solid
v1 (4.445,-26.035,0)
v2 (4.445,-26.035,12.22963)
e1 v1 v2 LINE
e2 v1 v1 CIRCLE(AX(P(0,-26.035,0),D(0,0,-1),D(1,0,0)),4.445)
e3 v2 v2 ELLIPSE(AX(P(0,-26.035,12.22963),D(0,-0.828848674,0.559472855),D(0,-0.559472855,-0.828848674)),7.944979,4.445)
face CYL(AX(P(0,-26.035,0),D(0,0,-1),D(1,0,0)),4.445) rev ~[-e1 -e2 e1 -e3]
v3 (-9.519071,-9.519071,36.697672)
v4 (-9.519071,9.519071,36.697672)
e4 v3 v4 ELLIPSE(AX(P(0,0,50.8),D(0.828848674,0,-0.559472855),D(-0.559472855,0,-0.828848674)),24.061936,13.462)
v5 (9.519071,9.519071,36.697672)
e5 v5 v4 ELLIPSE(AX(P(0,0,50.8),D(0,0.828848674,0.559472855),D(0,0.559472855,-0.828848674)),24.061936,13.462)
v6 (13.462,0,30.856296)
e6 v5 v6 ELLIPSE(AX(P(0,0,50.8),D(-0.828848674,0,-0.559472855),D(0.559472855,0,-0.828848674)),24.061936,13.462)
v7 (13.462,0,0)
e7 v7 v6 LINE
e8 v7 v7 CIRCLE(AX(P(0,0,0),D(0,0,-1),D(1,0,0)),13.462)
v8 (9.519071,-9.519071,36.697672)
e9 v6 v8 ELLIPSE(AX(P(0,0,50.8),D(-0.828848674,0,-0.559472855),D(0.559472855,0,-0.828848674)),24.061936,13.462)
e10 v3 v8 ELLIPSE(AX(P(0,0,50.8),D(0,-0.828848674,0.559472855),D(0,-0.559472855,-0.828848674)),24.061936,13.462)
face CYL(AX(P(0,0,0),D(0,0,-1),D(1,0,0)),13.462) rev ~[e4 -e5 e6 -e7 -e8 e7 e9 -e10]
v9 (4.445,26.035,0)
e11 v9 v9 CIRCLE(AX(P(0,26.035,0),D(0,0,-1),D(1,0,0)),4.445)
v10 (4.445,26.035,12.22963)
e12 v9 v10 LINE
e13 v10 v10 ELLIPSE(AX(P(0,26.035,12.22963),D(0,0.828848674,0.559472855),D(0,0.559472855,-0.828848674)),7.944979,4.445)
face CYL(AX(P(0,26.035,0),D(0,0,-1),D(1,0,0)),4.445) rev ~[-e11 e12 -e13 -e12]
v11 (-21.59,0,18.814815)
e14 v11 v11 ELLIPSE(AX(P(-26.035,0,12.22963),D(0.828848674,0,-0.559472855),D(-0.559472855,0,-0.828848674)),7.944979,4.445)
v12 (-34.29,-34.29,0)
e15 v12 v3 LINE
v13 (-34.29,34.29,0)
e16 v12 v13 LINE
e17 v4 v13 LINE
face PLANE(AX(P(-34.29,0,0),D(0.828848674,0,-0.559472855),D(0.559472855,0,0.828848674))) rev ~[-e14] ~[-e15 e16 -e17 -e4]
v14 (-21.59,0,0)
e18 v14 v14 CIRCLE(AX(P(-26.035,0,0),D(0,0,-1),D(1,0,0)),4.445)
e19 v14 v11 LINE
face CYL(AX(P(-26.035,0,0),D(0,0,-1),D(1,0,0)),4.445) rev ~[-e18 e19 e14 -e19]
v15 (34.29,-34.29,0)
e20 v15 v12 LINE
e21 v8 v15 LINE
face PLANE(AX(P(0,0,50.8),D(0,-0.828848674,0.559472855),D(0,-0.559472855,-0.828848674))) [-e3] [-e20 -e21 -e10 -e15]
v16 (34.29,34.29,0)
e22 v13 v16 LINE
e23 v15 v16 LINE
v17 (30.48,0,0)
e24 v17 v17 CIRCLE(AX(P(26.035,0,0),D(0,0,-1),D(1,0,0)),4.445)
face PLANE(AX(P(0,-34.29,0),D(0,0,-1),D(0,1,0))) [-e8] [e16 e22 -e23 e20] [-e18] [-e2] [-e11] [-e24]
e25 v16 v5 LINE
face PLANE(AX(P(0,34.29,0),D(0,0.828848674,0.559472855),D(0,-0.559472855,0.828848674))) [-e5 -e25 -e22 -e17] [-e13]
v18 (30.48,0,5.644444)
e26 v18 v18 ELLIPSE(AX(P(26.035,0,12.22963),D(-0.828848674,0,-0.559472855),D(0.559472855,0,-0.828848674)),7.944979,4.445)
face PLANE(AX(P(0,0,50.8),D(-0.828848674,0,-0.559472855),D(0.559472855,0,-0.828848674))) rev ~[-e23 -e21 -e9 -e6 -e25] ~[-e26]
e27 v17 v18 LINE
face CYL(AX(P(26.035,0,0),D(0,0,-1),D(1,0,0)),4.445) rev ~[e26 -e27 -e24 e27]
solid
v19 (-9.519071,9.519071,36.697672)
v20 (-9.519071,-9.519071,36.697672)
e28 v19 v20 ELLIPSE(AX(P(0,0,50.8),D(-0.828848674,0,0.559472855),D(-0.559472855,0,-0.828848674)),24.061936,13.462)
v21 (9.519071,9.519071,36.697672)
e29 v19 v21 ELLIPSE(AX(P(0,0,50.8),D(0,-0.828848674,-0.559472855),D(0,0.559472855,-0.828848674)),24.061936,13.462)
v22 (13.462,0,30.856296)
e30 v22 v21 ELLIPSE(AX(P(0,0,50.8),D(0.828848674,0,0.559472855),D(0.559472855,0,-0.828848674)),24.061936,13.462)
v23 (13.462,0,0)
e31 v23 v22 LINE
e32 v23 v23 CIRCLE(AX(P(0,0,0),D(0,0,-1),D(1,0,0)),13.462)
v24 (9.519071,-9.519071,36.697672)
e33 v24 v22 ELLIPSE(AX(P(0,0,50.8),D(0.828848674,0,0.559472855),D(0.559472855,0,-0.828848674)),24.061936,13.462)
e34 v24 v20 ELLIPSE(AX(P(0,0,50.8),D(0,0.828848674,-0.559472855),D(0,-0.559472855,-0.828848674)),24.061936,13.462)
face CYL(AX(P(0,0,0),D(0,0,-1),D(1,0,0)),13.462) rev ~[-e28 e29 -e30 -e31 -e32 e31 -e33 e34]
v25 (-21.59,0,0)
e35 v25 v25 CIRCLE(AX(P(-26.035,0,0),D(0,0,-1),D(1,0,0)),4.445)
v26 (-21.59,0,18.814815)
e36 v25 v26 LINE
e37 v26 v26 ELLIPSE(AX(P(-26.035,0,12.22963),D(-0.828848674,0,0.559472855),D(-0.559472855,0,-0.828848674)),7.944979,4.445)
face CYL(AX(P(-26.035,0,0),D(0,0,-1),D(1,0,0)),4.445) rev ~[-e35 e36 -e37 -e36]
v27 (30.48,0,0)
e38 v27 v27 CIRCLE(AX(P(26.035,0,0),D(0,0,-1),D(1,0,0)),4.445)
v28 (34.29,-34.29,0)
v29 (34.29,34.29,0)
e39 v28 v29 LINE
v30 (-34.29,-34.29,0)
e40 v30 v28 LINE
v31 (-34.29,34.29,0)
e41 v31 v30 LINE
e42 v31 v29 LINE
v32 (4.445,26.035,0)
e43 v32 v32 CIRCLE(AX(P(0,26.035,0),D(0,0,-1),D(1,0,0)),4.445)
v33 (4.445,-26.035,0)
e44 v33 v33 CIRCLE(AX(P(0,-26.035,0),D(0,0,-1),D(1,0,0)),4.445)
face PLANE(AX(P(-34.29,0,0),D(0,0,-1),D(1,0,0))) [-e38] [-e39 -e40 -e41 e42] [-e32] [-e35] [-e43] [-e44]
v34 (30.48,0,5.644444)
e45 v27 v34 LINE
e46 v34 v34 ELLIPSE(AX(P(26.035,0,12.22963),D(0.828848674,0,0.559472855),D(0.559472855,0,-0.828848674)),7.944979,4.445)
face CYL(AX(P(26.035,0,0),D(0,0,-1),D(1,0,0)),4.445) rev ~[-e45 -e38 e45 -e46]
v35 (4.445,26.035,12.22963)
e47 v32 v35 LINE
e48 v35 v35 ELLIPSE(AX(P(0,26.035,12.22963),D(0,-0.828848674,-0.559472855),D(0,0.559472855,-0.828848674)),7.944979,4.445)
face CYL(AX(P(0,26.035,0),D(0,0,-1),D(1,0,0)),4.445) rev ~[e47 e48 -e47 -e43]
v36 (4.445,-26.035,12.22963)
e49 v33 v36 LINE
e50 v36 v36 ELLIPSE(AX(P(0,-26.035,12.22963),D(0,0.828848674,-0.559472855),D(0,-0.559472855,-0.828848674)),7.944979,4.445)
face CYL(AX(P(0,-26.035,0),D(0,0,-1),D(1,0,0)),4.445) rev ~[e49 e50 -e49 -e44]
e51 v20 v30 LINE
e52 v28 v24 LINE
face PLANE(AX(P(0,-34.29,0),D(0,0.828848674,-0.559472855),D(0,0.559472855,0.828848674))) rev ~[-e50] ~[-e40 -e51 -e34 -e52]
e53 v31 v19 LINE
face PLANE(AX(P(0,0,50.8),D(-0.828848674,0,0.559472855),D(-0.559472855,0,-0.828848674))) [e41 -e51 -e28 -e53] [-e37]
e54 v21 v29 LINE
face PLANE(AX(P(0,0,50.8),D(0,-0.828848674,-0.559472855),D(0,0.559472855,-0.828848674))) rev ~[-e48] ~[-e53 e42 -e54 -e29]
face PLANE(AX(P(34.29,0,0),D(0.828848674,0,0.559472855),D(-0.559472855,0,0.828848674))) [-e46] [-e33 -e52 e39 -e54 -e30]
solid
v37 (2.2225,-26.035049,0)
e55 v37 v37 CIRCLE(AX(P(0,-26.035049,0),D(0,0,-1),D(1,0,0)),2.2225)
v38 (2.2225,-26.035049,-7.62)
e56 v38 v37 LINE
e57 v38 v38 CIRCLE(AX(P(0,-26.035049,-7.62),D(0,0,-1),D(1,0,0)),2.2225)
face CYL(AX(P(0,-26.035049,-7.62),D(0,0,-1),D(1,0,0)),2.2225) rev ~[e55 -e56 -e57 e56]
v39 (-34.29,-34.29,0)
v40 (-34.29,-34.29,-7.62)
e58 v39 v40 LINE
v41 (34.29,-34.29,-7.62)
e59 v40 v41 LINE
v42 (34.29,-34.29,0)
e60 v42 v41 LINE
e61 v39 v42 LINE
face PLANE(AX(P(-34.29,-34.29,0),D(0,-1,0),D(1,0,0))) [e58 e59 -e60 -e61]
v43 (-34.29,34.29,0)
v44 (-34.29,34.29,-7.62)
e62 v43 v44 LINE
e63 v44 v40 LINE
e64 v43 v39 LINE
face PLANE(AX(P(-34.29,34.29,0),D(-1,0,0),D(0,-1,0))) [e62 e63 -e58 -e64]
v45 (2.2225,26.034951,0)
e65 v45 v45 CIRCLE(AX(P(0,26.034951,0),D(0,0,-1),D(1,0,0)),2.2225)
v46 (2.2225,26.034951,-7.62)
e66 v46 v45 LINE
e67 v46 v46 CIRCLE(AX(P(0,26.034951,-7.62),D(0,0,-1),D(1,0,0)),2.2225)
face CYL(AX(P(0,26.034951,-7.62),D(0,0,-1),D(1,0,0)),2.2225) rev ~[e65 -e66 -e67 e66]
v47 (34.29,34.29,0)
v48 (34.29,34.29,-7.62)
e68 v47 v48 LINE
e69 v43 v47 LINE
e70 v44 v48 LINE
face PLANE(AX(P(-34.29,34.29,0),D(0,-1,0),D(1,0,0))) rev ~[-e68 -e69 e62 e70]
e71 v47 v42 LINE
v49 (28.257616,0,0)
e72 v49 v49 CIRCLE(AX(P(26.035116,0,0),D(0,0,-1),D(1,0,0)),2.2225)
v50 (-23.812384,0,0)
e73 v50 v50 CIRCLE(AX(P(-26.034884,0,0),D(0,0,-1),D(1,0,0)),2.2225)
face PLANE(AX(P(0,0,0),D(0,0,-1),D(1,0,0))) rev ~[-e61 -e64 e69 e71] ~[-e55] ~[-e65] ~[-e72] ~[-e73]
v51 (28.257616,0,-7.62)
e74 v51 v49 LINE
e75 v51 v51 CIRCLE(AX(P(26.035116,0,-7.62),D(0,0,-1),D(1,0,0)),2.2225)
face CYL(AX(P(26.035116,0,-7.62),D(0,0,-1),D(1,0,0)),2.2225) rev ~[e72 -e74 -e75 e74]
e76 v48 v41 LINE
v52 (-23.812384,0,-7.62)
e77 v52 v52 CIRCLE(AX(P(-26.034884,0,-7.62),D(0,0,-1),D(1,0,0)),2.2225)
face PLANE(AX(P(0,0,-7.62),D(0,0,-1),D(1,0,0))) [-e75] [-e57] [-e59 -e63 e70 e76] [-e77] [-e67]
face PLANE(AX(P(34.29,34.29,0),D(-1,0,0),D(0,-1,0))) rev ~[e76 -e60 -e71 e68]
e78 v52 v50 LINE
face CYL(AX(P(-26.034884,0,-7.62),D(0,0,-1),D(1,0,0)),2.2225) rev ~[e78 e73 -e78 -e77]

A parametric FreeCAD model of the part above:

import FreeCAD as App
import Part
import Sketcher
Q = App.Units.Quantity


def add_polygon(sketch, points):
    """Adds a closed chain of lines whose ends are joined by coincident constraints."""
    first, n = sketch.GeometryCount, len(points)
    for a, b in zip(points, points[1:] + points[:1]):
        sketch.addGeometry(Part.LineSegment(App.Vector(*a, 0), App.Vector(*b, 0)), False)
    for i in range(n):
        sketch.addConstraint(Sketcher.Constraint("Coincident", first + i, 2, first + (i + 1) % n, 1))

doc = App.newDocument("Part")
body = doc.addObject("PartDesign::Body", "Body")

sketch1 = body.newObject("Sketcher::SketchObject", "Sketch")
sketch1.AttachmentSupport = (doc.getObject("XZ_Plane"), [""])
sketch1.MapMode = "FlatFace"
add_polygon(sketch1, [(0, 50.8), (-34.29, 0), (34.29, 0)])
sketch1.addConstraint([
    Sketcher.Constraint("Horizontal", 1),
    Sketcher.Constraint("Symmetric", 0, 2, 1, 2, -1, 1),
    Sketcher.Constraint("PointOnObject", 2, 2, -2),
    Sketcher.Constraint("DistanceX", 1, 1, 1, 2, Q("2.7 in")),
    Sketcher.Constraint("DistanceY", -1, 1, 2, 2, Q("2 in")),
])
pad1 = body.newObject("PartDesign::Pad", "Pad")
pad1.Profile = sketch1
pad1.Length = Q("2.7 in")
pad1.Midplane = True

sketch2 = body.newObject("Sketcher::SketchObject", "Sketch001")
sketch2.AttachmentSupport = (doc.getObject("YZ_Plane"), [""])
sketch2.MapMode = "FlatFace"
add_polygon(sketch2, [(34.29, 50.8), (0, 50.8), (34.29, 0)])
sketch2.addConstraint([
    Sketcher.Constraint("Horizontal", 0),
    Sketcher.Constraint("Vertical", 2),
    Sketcher.Constraint("PointOnObject", 0, 2, -2),
    Sketcher.Constraint("PointOnObject", 1, 2, -1),
    Sketcher.Constraint("DistanceY", 2, 1, 2, 2, Q("2 in")),
    Sketcher.Constraint("DistanceX", 0, 2, 0, 1, Q("1.35 in")),
])
pocket1 = body.newObject("PartDesign::Pocket", "Pocket")
pocket1.Profile = sketch2
pocket1.Length = Q("3 in")
pocket1.Midplane = True

sketch3 = body.newObject("Sketcher::SketchObject", "Sketch002")
sketch3.AttachmentSupport = (doc.getObject("YZ_Plane"), [""])
sketch3.MapMode = "FlatFace"
add_polygon(sketch3, [(-34.29, 0), (0, 50.8), (-34.29, 50.8)])
sketch3.addConstraint([
    Sketcher.Constraint("Horizontal", 1),
    Sketcher.Constraint("Vertical", 2),
    Sketcher.Constraint("PointOnObject", 0, 2, -2),
    Sketcher.Constraint("PointOnObject", 2, 2, -1),
    Sketcher.Constraint("DistanceY", 2, 2, 2, 1, Q("2 in")),
    Sketcher.Constraint("DistanceX", 1, 2, 1, 1, Q("1.35 in")),
])
pocket2 = body.newObject("PartDesign::Pocket", "Pocket001")
pocket2.Profile = sketch3
pocket2.Length = Q("3 in")
pocket2.Midplane = True
body2 = doc.addObject("PartDesign::Body", "Body001")

sketch4 = body2.newObject("Sketcher::SketchObject", "Sketch003")
sketch4.AttachmentSupport = (doc.getObject("YZ_Plane001"), [""])
sketch4.MapMode = "FlatFace"
add_polygon(sketch4, [(-34.29, 0), (34.29, 0), (0, 50.8)])
sketch4.addConstraint([
    Sketcher.Constraint("Horizontal", 0),
    Sketcher.Constraint("Symmetric", 0, 2, 2, 2, -1, 1),
    Sketcher.Constraint("PointOnObject", 1, 2, -2),
    Sketcher.Constraint("DistanceX", 0, 1, 0, 2, Q("2.7 in")),
    Sketcher.Constraint("DistanceY", -1, 1, 1, 2, Q("2 in")),
])
pad2 = body2.newObject("PartDesign::Pad", "Pad001")
pad2.Profile = sketch4
pad2.Length = Q("2.7 in")
pad2.Midplane = True

sketch5 = body2.newObject("Sketcher::SketchObject", "Sketch004")
sketch5.AttachmentSupport = (doc.getObject("XZ_Plane001"), [""])
sketch5.MapMode = "FlatFace"
add_polygon(sketch5, [(-34.29, 0), (0, 50.8), (-34.29, 50.8)])
sketch5.addConstraint([
    Sketcher.Constraint("Horizontal", 1),
    Sketcher.Constraint("Vertical", 2),
    Sketcher.Constraint("PointOnObject", 0, 2, -2),
    Sketcher.Constraint("PointOnObject", 2, 2, -1),
    Sketcher.Constraint("DistanceY", 2, 2, 2, 1, Q("2 in")),
    Sketcher.Constraint("DistanceX", 1, 2, 1, 1, Q("1.35 in")),
])
pocket3 = body2.newObject("PartDesign::Pocket", "Pocket002")
pocket3.Profile = sketch5
pocket3.Length = Q("3 in")
pocket3.Midplane = True

sketch6 = body2.newObject("Sketcher::SketchObject", "Sketch005")
sketch6.AttachmentSupport = (doc.getObject("XZ_Plane001"), [""])
sketch6.MapMode = "FlatFace"
add_polygon(sketch6, [(34.29, 50.8), (0, 50.8), (34.29, 0)])
sketch6.addConstraint([
    Sketcher.Constraint("Horizontal", 0),
    Sketcher.Constraint("Vertical", 2),
    Sketcher.Constraint("PointOnObject", 0, 2, -2),
    Sketcher.Constraint("PointOnObject", 1, 2, -1),
    Sketcher.Constraint("DistanceY", 2, 1, 2, 2, Q("2 in")),
    Sketcher.Constraint("DistanceX", 0, 2, 0, 1, Q("1.35 in")),
])
pocket4 = body2.newObject("PartDesign::Pocket", "Pocket003")
pocket4.Profile = sketch6
pocket4.Length = Q("3 in")
pocket4.Midplane = True
body3 = doc.addObject("PartDesign::Body", "Body002")

sketch7 = body3.newObject("Sketcher::SketchObject", "Sketch006")
sketch7.AttachmentSupport = (doc.getObject("XY_Plane002"), [""])
sketch7.MapMode = "FlatFace"
sketch7.addGeometry(Part.Circle(App.Vector(0, 0, 0), App.Vector(0, 0, 1), 13.462), False)
sketch7.addConstraint([
    Sketcher.Constraint("Coincident", 0, 3, -1, 1),
    Sketcher.Constraint("Diameter", 0, Q("1.06 in")),
])
pad3 = body3.newObject("PartDesign::Pad", "Pad002")
pad3.Profile = sketch7
pad3.Length = Q("2.1 in")
doc.recompute()

body4 = doc.addObject("PartDesign::Body", "Body003")
body4.BaseFeature = body3
boolean = body.newObject("PartDesign::Boolean", "Boolean")
boolean.Type = "Cut"
boolean.addObjects([body4])
doc.recompute()

boolean2 = body2.newObject("PartDesign::Boolean", "Boolean001")
boolean2.Type = "Cut"
boolean2.addObjects([body3])
body5 = doc.addObject("PartDesign::Body", "Body004")
body5.AllowCompound = True

sketch8 = body5.newObject("Sketcher::SketchObject", "Sketch007")
sketch8.AttachmentSupport = (doc.getObject("XY_Plane004"), [""])
sketch8.MapMode = "FlatFace"
sketch8.addGeometry([
    Part.Circle(App.Vector(0, -26.035, 0), App.Vector(0, 0, 1), 4.445),
    Part.Circle(App.Vector(26.035, 0, 0), App.Vector(0, 0, 1), 4.445),
    Part.Circle(App.Vector(0, 26.035, 0), App.Vector(0, 0, 1), 4.445),
    Part.Circle(App.Vector(-26.035, 0, 0), App.Vector(0, 0, 1), 4.445),
], False)
sketch8.addConstraint([
    Sketcher.Constraint("Equal", 0, 1),
    Sketcher.Constraint("Equal", 1, 2),
    Sketcher.Constraint("Equal", 2, 3),
    Sketcher.Constraint("Symmetric", 0, 3, 2, 3, -1, 1),
    Sketcher.Constraint("Symmetric", 1, 3, 3, 3, -1, 1),
    Sketcher.Constraint("PointOnObject", 0, 3, -2),
    Sketcher.Constraint("PointOnObject", 1, 3, -1),
    Sketcher.Constraint("Diameter", 0, Q("0.35 in")),
    Sketcher.Constraint("DistanceY", 0, 3, 2, 3, Q("2.05 in")),
    Sketcher.Constraint("DistanceX", 3, 3, 1, 3, Q("2.05 in")),
])
pad4 = body5.newObject("PartDesign::Pad", "Pad003")
pad4.Profile = sketch8
pad4.Length = Q("0.9 in")
doc.recompute()

body6 = doc.addObject("PartDesign::Body", "Body005")
body6.BaseFeature = body5
boolean3 = body.newObject("PartDesign::Boolean", "Boolean002")
boolean3.Type = "Cut"
boolean3.addObjects([body6])
doc.recompute()

boolean4 = body2.newObject("PartDesign::Boolean", "Boolean003")
boolean4.Type = "Cut"
boolean4.addObjects([body5])
body7 = doc.addObject("PartDesign::Body", "Body006")

sketch9 = body7.newObject("Sketcher::SketchObject", "Sketch008")
sketch9.AttachmentSupport = (doc.getObject("XY_Plane006"), [""])
sketch9.MapMode = "FlatFace"
add_polygon(sketch9, [(-34.29, -34.29), (-34.29, 34.29), (34.29, 34.29), (34.29, -34.29)])
sketch9.addConstraint([
    Sketcher.Constraint("Vertical", 0),
    Sketcher.Constraint("Horizontal", 1),
    Sketcher.Constraint("Vertical", 2),
    Sketcher.Constraint("Horizontal", 3),
    Sketcher.Constraint("Symmetric", 0, 2, 2, 2, -1, 1),
    Sketcher.Constraint("Equal", 3, 0),
    Sketcher.Constraint("DistanceX", 1, 1, 1, 2, Q("2.7 in")),
])
pad5 = body7.newObject("PartDesign::Pad", "Pad004")
pad5.Profile = sketch9
pad5.Length = Q("0.3 in")
pad5.Reversed = True

sketch10 = body7.newObject("Sketcher::SketchObject", "Sketch009")
sketch10.AttachmentSupport = (doc.getObject("XY_Plane006"), [""])
sketch10.MapMode = "FlatFace"
sketch10.AttachmentOffset = App.Placement(App.Vector(0, 0, -0.3 * 25.4), App.Rotation())
sketch10.addGeometry([
    Part.Circle(App.Vector(0, -26.035049, 0), App.Vector(0, 0, 1), 2.2225),
    Part.Circle(App.Vector(-26.034884, 0, 0), App.Vector(0, 0, 1), 2.2225),
    Part.Circle(App.Vector(0, 26.034951, 0), App.Vector(0, 0, 1), 2.2225),
    Part.Circle(App.Vector(26.035116, 0, 0), App.Vector(0, 0, 1), 2.2225),
], False)
sketch10.addConstraint([
    Sketcher.Constraint("Equal", 0, 1),
    Sketcher.Constraint("Equal", 1, 2),
    Sketcher.Constraint("Equal", 2, 3),
    Sketcher.Constraint("PointOnObject", 0, 3, -2),
    Sketcher.Constraint("PointOnObject", 1, 3, -1),
    Sketcher.Constraint("PointOnObject", 2, 3, -2),
    Sketcher.Constraint("PointOnObject", 3, 3, -1),
    Sketcher.Constraint("Diameter", 0, Q("0.175 in")),
    Sketcher.Constraint("DistanceY", 0, 3, 2, 3, Q("2.05 in")),
    Sketcher.Constraint("DistanceX", 1, 3, 3, 3, Q("2.05 in")),
    Sketcher.Constraint("DistanceY", 0, 3, -1, 1, 26.035049),
    Sketcher.Constraint("DistanceX", 1, 3, -1, 1, 26.034884),
])
pocket5 = body7.newObject("PartDesign::Pocket", "Pocket004")
pocket5.Profile = sketch10
pocket5.Length = Q("0.5 in")
pocket5.Reversed = True

doc.recompute()
